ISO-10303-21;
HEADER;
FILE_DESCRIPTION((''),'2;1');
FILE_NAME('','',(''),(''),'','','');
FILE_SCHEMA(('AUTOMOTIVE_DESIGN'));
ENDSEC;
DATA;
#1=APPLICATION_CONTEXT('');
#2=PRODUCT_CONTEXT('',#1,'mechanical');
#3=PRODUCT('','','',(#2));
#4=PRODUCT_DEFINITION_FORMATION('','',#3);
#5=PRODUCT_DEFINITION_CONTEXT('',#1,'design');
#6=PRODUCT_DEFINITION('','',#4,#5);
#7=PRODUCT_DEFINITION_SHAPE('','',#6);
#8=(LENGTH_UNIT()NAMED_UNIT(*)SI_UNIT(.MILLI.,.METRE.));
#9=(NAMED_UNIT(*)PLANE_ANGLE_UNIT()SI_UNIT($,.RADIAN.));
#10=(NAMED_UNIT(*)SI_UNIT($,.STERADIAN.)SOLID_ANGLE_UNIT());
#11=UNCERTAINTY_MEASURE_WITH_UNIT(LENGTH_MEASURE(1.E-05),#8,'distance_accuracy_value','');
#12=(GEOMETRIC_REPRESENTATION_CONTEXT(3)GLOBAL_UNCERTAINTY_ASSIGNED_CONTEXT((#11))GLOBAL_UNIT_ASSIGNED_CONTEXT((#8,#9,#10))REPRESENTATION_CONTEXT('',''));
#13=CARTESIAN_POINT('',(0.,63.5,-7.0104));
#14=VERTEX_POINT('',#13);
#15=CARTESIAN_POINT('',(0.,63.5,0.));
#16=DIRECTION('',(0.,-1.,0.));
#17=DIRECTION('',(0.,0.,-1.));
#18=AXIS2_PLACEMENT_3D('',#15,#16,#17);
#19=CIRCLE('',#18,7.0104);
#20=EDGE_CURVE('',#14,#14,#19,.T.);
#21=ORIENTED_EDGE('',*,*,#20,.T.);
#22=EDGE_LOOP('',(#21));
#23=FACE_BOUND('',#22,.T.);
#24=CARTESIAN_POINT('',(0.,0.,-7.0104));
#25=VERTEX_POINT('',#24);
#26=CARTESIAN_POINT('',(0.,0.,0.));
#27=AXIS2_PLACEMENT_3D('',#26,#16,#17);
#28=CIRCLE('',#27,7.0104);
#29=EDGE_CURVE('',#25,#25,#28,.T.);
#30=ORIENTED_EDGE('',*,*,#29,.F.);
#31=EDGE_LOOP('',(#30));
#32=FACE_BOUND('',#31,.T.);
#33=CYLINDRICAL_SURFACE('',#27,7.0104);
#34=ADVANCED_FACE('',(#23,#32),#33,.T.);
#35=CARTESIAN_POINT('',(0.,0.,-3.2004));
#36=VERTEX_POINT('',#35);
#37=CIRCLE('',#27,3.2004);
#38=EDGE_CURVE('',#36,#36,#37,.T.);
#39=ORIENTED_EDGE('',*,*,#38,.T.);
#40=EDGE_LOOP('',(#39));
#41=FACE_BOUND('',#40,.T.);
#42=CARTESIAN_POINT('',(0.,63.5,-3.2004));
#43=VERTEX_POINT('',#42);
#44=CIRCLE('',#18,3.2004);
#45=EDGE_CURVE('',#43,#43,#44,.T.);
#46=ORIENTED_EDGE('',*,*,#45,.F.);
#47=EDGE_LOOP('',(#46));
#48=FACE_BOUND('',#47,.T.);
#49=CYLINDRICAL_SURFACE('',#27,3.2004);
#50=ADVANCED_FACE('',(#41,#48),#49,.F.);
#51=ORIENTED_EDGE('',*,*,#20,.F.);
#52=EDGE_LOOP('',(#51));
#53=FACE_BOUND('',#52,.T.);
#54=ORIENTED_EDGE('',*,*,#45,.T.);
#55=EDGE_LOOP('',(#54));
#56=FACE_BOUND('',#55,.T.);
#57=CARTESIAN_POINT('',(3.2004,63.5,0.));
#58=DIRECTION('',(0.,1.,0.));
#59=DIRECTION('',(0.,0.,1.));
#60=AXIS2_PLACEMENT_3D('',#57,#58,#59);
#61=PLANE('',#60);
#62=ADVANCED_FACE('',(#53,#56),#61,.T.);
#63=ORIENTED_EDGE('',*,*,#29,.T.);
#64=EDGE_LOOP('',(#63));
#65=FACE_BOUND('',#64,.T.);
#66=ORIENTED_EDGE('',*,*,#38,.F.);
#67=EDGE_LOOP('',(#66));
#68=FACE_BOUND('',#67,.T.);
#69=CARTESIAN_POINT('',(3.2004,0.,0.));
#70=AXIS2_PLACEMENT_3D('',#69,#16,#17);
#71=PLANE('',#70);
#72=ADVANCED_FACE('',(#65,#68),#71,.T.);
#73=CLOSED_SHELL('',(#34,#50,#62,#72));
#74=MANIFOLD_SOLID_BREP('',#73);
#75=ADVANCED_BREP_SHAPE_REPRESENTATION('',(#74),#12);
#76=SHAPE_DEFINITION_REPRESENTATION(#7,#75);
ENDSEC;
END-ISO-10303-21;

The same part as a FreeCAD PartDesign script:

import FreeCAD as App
import Part
import Sketcher

V = App.Vector
Q = App.Units.Quantity


def add_polygon(sketch, points):
    """Adds a closed chain of lines whose ends are joined by coincident constraints."""
    first, n = sketch.GeometryCount, len(points)
    for a, b in zip(points, points[1:] + points[:1]):
        sketch.addGeometry(Part.LineSegment(App.Vector(*a, 0), App.Vector(*b, 0)), False)
    for i in range(n):
        sketch.addConstraint(Sketcher.Constraint("Coincident", first + i, 2, first + (i + 1) % n, 1))

doc = App.newDocument("Part")
params = doc.addObject("Spreadsheet::Sheet", "Params")
for row, (alias, value) in enumerate([
    ("sketch1_height", "2.5 in"),
    ("sketch1_width", "0.15 in"),
    ("revolution_angle", "360 deg"),
], start=1):
    params.set(f"A{row}", alias)
    params.set(f"B{row}", "=" + value)
    params.setAlias(f"B{row}", alias)

body = doc.addObject("PartDesign::Body", "Body")

sketch1 = body.newObject("Sketcher::SketchObject", "Sketch")
sketch1.AttachmentSupport = (doc.getObject("XY_Plane"), [""])
sketch1.MapMode = "FlatFace"
add_polygon(sketch1, [(3.2, 63.5), (3.2, 0), (7, 0), (7, 63.5)])
sketch1.addConstraint(Sketcher.Constraint("Vertical", 0))
sketch1.addConstraint(Sketcher.Constraint("Horizontal", 1))
sketch1.addConstraint(Sketcher.Constraint("Vertical", 2))
sketch1.addConstraint(Sketcher.Constraint("Horizontal", 3))
sketch1.addConstraint(Sketcher.Constraint("PointOnObject", 0, 2, -1))
sketch1.addConstraint(Sketcher.Constraint("DistanceY", 0, 2, 0, 1, Q("2.5 in")))
sketch1.addConstraint(Sketcher.Constraint("DistanceX", 1, 1, 1, 2, Q("0.15 in")))
sketch1.addConstraint(Sketcher.Constraint("DistanceX", -1, 1, 0, 2, Q("0.126 in")))
sketch1.setExpression("Constraints[9]", "Params.sketch1_height")
sketch1.setExpression("Constraints[10]", "Params.sketch1_width")
revolution = body.newObject("PartDesign::Revolution", "Revolution")
revolution.Profile = sketch1
revolution.ReferenceAxis = (sketch1, ["V_Axis"])
revolution.setExpression("Angle", "Params.revolution_angle")

doc.recompute()
